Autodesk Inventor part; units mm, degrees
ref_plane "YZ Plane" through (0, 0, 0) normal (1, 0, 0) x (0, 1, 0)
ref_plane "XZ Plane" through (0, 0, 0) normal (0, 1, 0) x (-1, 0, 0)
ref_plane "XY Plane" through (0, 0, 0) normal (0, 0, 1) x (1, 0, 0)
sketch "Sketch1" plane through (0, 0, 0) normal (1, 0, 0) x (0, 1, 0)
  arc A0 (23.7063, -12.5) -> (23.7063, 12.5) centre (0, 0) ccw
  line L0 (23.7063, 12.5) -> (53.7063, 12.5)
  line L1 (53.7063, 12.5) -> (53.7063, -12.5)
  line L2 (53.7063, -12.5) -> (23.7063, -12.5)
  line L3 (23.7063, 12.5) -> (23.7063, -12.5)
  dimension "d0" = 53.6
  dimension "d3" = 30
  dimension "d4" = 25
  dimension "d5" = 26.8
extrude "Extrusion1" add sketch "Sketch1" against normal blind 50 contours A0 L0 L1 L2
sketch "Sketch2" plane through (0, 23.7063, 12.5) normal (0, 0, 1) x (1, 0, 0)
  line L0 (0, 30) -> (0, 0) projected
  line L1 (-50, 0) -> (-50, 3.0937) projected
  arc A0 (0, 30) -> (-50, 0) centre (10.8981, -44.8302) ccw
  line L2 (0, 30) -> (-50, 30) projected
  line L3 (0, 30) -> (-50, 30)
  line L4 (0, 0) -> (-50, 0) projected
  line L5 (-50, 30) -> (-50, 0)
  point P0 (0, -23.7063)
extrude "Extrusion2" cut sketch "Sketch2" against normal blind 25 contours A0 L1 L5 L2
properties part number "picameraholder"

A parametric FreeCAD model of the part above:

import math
import FreeCAD as App
import Part
import Sketcher

V = App.Vector
Q = App.Units.Quantity

doc = App.newDocument("Part")
body = doc.addObject("PartDesign::Body", "Body")

# Sketch on YZ plane
sketch1 = body.newObject("Sketcher::SketchObject", "Sketch")
sketch1.AttachmentSupport = (doc.getObject("YZ_Plane"), [""])
sketch1.MapMode = "FlatFace"
sketch1.addGeometry(Part.ArcOfCircle(Part.Circle(V(0, 0, 0), V(0, 0, 1), 26.799975), math.radians(-27.802054), math.radians(27.802054)), False)
sketch1.addGeometry(Part.LineSegment(V(23.7063, -12.5, 0), V(53.7063, -12.5, 0)), False)
sketch1.addGeometry(Part.LineSegment(V(53.7063, -12.5, 0), V(53.7063, 12.5, 0)), False)
sketch1.addGeometry(Part.LineSegment(V(53.7063, 12.5, 0), V(23.7063, 12.5, 0)), False)
sketch1.addConstraint(Sketcher.Constraint("Coincident", 0, 1, 1, 1))
sketch1.addConstraint(Sketcher.Constraint("Coincident", 1, 2, 2, 1))
sketch1.addConstraint(Sketcher.Constraint("Coincident", 2, 2, 3, 1))
sketch1.addConstraint(Sketcher.Constraint("Coincident", 3, 2, 0, 2))
sketch1.addConstraint(Sketcher.Constraint("Horizontal", 1))
sketch1.addConstraint(Sketcher.Constraint("Vertical", 2))
sketch1.addConstraint(Sketcher.Constraint("Horizontal", 3))
sketch1.addConstraint(Sketcher.Constraint("Coincident", 0, 3, -1, 1))
sketch1.addConstraint(Sketcher.Constraint("Vertical", 0, 1, 3, 2))
sketch1.addConstraint(Sketcher.Constraint("Radius", 0, Q("26.8 mm")))
sketch1.addConstraint(Sketcher.Constraint("DistanceX", 1, 1, 1, 2, Q("30 mm")))
sketch1.addConstraint(Sketcher.Constraint("DistanceY", 2, 1, 2, 2, Q("25 mm")))
pad1 = body.newObject("PartDesign::Pad", "Pad")
pad1.Profile = sketch1
pad1.Length = 50
pad1.Reversed = True

# Sketch on XY plane
sketch2 = body.newObject("Sketcher::SketchObject", "Sketch001")
sketch2.AttachmentSupport = (doc.getObject("XY_Plane"), [""])
sketch2.MapMode = "FlatFace"
sketch2.AttachmentOffset = App.Placement(V(0, 0, 12.5), App.Rotation())
sketch2.addGeometry(Part.ArcOfCircle(Part.Circle(V(10.8981, -21.1239, 0), V(0, 0, 1), 75.619623), math.radians(98.28617), math.radians(143.641319)), False)
sketch2.addGeometry(Part.LineSegment(V(0, 53.7063, 0), V(-50, 53.7063, 0)), False)
sketch2.addGeometry(Part.LineSegment(V(-50, 53.7063, 0), V(-50, 23.7063, 0)), False)
sketch2.addConstraint(Sketcher.Constraint("Coincident", 0, 1, 1, 1))
sketch2.addConstraint(Sketcher.Constraint("Coincident", 1, 2, 2, 1))
sketch2.addConstraint(Sketcher.Constraint("Coincident", 2, 2, 0, 2))
sketch2.addConstraint(Sketcher.Constraint("Horizontal", 1))
sketch2.addConstraint(Sketcher.Constraint("Vertical", 2))
sketch2.addConstraint(Sketcher.Constraint("PointOnObject", 0, 1, -2))
sketch2.addConstraint(Sketcher.Constraint("DistanceX", 1, 2, 1, 1, Q("50 mm")))
sketch2.addConstraint(Sketcher.Constraint("DistanceY", 2, 2, 2, 1, Q("30 mm")))
sketch2.addConstraint(Sketcher.Constraint("Radius", 0, Q("75.6196 mm")))
sketch2.addConstraint(Sketcher.Constraint("DistanceY", 0, 3, -1, 1, Q("21.124 mm")))
pocket1 = body.newObject("PartDesign::Pocket", "Pocket")
pocket1.Profile = sketch2
pocket1.Length = 25

doc.recompute()
